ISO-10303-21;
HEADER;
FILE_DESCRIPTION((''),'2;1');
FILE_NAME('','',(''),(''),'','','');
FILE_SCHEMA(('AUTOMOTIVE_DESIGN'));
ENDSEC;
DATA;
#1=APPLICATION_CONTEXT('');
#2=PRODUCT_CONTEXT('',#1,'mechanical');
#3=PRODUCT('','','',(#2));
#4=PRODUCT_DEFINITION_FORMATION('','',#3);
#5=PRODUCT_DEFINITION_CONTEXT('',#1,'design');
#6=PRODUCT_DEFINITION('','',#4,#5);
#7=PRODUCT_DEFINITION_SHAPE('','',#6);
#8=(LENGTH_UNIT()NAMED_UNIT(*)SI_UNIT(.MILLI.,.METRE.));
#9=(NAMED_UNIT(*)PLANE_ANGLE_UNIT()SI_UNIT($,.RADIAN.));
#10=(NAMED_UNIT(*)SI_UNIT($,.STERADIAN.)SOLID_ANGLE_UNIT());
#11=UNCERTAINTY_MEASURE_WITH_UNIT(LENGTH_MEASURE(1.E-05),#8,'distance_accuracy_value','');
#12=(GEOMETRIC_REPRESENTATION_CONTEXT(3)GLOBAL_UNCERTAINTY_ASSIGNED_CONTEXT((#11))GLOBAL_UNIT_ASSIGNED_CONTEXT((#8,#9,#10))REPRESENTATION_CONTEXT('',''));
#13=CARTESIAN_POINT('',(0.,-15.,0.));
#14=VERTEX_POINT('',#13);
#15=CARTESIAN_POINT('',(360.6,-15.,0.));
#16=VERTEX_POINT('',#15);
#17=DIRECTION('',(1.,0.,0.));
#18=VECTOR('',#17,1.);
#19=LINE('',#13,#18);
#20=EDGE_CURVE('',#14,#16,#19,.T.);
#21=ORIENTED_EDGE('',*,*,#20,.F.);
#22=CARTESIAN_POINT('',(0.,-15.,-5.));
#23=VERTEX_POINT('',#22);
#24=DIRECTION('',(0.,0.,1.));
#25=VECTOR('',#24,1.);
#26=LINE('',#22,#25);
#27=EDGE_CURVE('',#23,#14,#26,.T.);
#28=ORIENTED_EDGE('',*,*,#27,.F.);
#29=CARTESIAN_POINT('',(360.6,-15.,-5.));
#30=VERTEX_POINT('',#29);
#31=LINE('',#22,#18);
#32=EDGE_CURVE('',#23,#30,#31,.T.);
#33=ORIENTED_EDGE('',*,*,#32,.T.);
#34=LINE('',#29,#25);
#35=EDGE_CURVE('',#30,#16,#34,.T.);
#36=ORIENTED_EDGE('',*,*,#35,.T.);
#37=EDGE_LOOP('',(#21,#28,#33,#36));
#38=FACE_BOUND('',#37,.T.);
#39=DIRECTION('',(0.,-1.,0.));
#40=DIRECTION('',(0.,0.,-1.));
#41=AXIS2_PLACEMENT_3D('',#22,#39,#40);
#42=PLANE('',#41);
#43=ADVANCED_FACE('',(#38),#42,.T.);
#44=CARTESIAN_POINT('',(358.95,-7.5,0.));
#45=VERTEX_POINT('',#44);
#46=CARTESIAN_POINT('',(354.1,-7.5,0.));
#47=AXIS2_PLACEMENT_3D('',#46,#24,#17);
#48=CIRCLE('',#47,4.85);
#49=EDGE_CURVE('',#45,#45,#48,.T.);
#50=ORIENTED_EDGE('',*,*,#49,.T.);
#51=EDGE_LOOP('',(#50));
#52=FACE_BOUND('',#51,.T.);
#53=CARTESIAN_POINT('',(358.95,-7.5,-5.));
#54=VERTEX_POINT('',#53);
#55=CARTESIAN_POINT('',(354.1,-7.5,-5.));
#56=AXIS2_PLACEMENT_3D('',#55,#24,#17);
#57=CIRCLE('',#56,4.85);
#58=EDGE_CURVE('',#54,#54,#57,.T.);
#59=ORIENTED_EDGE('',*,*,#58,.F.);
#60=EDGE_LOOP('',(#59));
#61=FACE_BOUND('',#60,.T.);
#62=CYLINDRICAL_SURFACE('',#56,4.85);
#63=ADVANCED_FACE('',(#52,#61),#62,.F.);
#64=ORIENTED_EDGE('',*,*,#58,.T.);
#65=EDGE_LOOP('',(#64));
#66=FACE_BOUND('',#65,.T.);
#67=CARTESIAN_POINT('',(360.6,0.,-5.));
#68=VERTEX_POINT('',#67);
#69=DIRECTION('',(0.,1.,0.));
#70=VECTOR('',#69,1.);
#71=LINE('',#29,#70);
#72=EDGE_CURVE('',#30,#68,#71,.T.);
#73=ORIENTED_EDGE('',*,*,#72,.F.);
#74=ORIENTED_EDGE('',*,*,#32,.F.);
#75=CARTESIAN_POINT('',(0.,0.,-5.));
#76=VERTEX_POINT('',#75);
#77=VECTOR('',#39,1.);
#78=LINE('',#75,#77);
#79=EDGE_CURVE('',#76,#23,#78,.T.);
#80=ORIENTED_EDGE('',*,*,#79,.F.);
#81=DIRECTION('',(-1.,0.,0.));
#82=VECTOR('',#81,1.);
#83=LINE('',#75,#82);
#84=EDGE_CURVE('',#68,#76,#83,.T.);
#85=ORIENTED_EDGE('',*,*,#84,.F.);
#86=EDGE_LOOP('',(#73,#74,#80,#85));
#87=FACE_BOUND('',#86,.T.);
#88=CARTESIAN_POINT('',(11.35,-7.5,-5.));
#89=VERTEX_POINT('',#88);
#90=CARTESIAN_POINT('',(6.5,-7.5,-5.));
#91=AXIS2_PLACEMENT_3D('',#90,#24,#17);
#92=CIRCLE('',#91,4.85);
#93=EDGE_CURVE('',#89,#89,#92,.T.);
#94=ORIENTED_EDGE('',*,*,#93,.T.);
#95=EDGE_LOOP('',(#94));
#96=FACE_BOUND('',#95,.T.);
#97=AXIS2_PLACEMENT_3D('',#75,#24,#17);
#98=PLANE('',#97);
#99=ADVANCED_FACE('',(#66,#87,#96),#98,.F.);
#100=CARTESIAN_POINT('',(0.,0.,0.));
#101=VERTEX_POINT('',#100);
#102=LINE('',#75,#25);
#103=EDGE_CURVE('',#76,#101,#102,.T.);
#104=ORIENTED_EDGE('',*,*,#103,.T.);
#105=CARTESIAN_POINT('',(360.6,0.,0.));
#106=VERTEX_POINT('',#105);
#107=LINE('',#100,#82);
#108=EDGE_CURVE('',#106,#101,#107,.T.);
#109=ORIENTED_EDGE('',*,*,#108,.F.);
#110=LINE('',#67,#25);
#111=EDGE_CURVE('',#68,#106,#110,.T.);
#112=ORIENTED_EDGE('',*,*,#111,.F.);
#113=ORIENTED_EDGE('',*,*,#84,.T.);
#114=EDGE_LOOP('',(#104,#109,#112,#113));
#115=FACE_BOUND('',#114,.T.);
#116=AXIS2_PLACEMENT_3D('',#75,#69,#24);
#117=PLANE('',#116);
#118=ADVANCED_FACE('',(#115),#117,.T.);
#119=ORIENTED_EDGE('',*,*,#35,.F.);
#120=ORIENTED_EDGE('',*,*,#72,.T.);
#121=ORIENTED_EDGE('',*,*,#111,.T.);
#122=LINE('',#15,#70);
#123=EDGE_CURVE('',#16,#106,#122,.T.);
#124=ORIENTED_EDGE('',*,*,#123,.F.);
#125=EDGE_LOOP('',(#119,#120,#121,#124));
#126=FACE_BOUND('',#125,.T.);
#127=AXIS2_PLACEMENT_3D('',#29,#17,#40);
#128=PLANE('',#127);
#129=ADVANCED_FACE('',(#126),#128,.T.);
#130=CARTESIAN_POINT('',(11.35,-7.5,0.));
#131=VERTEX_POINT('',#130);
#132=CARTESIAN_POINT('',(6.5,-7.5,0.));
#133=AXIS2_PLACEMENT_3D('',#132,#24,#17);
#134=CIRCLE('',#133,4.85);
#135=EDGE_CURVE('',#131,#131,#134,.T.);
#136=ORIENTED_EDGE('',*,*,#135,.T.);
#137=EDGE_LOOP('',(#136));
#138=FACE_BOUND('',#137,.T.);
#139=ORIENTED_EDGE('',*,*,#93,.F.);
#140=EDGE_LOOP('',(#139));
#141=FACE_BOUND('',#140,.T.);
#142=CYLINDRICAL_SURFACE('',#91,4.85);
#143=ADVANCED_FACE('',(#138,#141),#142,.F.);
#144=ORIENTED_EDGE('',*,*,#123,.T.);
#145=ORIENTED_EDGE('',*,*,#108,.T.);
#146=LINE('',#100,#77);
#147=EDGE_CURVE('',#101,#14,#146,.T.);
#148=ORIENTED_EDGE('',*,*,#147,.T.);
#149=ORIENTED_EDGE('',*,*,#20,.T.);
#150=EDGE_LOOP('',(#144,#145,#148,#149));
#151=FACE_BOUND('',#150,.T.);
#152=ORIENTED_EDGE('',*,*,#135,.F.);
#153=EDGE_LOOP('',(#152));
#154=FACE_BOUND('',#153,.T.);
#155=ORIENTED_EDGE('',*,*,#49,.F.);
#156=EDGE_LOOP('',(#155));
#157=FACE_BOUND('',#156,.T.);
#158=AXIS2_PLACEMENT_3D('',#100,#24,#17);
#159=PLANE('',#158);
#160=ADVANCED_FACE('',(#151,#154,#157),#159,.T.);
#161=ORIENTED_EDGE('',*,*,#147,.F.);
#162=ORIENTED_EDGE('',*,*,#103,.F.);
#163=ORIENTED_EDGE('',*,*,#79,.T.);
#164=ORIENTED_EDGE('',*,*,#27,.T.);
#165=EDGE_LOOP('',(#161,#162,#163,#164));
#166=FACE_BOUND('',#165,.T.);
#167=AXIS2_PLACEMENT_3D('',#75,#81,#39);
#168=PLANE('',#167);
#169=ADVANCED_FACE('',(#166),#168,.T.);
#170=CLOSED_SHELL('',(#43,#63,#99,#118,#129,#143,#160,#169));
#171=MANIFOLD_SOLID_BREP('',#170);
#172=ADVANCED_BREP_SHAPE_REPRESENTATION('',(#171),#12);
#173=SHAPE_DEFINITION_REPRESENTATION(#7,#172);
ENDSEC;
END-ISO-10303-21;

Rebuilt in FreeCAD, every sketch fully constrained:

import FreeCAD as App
import Part
import Sketcher
from FreeCAD import Vector
Q = App.Units.Quantity

doc = App.newDocument("Part")
body = doc.addObject("PartDesign::Body", "Body")

# Sketch on XY plane
sketch1 = body.newObject("Sketcher::SketchObject", "Sketch")
sketch1.AttachmentSupport = (doc.getObject("XY_Plane"), [""])
sketch1.MapMode = "FlatFace"
sketch1.addGeometry([
    Part.LineSegment(Vector(0, 0, 0), Vector(0, -15, 0)),
    Part.LineSegment(Vector(0, -15, 0), Vector(361, -15, 0)),
    Part.LineSegment(Vector(361, -15, 0), Vector(361, 0, 0)),
    Part.LineSegment(Vector(361, 0, 0), Vector(0, 0, 0)),
], False)
sketch1.addConstraint([
    Sketcher.Constraint("Coincident", 0, 2, 1, 1),
    Sketcher.Constraint("Coincident", 1, 2, 2, 1),
    Sketcher.Constraint("Coincident", 2, 2, 3, 1),
    Sketcher.Constraint("Coincident", 3, 2, 0, 1),
    Sketcher.Constraint("Vertical", 0),
    Sketcher.Constraint("Horizontal", 1),
    Sketcher.Constraint("Vertical", 2),
    Sketcher.Constraint("Horizontal", 3),
    Sketcher.Constraint("Coincident", 3, 2, -1, 1),
    Sketcher.Constraint("DistanceY", 0, 2, 0, 1, Q("15 mm")),
    Sketcher.Constraint("DistanceX", 1, 1, 1, 2, Q("360.6 mm")),
])
pad1 = body.newObject("PartDesign::Pad", "Pad")
pad1.Profile = sketch1
pad1.Length = 5
pad1.Reversed = True

# Sketch on XY plane
sketch2 = body.newObject("Sketcher::SketchObject", "Sketch001")
sketch2.AttachmentSupport = (doc.getObject("XY_Plane"), [""])
sketch2.MapMode = "FlatFace"
sketch2.addGeometry([
    Part.Circle(Vector(6.5, -7.5, 0), Vector(0, 0, 1), 4.8),
    Part.Circle(Vector(354.1, -7.5, 0), Vector(0, 0, 1), 4.8),
], False)
sketch2.addConstraint([
    Sketcher.Constraint("Equal", 0, 1),
    Sketcher.Constraint("Horizontal", 0, 3, 1, 3),
    Sketcher.Constraint("Diameter", 0, Q("9.7 mm")),
    Sketcher.Constraint("DistanceX", -1, 1, 0, 3, Q("6.5 mm")),
    Sketcher.Constraint("DistanceY", 0, 3, -1, 1, Q("7.5 mm")),
    Sketcher.Constraint("DistanceX", -1, 1, 1, 3, Q("354.1 mm")),
])
pocket1 = body.newObject("PartDesign::Pocket", "Pocket")
pocket1.Profile = sketch2
pocket1.Length = 5

doc.recompute()
